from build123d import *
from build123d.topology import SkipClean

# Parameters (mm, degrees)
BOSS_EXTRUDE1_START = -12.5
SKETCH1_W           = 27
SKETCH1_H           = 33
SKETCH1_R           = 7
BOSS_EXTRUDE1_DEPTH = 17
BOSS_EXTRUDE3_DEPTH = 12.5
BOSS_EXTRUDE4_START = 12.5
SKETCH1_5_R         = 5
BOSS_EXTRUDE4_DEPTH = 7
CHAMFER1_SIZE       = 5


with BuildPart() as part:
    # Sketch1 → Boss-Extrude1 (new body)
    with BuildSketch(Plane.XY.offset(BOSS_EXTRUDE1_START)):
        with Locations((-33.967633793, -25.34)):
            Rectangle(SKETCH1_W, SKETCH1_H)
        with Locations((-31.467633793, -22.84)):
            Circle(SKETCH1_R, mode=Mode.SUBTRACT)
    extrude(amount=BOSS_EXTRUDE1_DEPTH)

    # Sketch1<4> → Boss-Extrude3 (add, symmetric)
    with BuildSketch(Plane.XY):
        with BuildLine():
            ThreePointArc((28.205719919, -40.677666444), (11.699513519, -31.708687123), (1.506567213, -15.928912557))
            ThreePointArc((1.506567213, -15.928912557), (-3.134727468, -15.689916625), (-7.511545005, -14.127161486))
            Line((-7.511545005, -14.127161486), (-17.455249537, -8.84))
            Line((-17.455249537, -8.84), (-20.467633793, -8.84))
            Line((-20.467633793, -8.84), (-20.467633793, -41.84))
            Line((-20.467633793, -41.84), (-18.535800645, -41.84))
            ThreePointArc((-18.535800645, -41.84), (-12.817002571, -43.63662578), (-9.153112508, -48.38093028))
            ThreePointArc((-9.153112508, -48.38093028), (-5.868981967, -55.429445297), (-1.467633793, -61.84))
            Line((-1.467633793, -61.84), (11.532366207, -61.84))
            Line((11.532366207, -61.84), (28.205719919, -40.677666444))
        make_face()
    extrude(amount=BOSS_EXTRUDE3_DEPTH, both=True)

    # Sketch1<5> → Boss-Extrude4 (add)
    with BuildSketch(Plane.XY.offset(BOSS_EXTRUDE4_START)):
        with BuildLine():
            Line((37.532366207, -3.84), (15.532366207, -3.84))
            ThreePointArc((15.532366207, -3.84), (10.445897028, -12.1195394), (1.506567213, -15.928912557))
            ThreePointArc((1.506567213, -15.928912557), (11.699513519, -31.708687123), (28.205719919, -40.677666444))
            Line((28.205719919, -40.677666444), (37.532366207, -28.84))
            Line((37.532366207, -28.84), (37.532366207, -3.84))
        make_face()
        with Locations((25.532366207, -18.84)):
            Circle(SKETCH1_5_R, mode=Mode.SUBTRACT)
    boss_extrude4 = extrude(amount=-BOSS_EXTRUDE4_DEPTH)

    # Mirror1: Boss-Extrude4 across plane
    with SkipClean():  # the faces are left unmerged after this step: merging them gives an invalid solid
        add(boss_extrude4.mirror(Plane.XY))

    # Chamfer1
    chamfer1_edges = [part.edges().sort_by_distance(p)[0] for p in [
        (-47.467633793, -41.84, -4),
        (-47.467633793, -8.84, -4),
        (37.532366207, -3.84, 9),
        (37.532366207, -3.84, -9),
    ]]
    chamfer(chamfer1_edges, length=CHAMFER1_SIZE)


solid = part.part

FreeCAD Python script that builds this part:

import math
import FreeCAD as App
import Part
import Sketcher
from FreeCAD import Vector
Q = App.Units.Quantity


def edges_at(feature, points):
    """Names of the edges that pass closest to the given points."""
    edges = feature.Shape.Edges
    near = lambda p: min(range(len(edges)), key=lambda i: edges[i].distToShape(Part.Vertex(*p))[0])
    return sorted({f"Edge{near(p) + 1}" for p in points})


def add_polygon(sketch, points):
    """Adds a closed chain of lines whose ends are joined by coincident constraints."""
    first, n = sketch.GeometryCount, len(points)
    for a, b in zip(points, points[1:] + points[:1]):
        sketch.addGeometry(Part.LineSegment(App.Vector(*a, 0), App.Vector(*b, 0)), False)
    for i in range(n):
        sketch.addConstraint(Sketcher.Constraint("Coincident", first + i, 2, first + (i + 1) % n, 1))

doc = App.newDocument("Part")
body = doc.addObject("PartDesign::Body", "Body")

sketch1 = doc.addObject("Sketcher::SketchObject", "Sketch")
body.addObject(sketch1)
sketch1.AttachmentSupport = (doc.XY_Plane, [""])
sketch1.MapMode = "FlatFace"
sketch1.AttachmentOffset = App.Placement(Vector(0, 0, -12.5), App.Rotation())
add_polygon(sketch1, [(-47, -9), (-47, -42), (-20, -42), (-20, -9)])
sketch1.addGeometry(Part.Circle(Vector(-31, -23, 0), Vector(0, 0, 1), 7), False)
sketch1.addConstraint(Sketcher.Constraint("Vertical", 0))
sketch1.addConstraint(Sketcher.Constraint("Horizontal", 1))
sketch1.addConstraint(Sketcher.Constraint("Vertical", 2))
sketch1.addConstraint(Sketcher.Constraint("Horizontal", 3))
sketch1.addConstraint(Sketcher.Constraint("Diameter", 4, 14.0))
sketch1.addConstraint(Sketcher.Constraint("DistanceX", 1, 1, 1, 2, 27.0))
sketch1.addConstraint(Sketcher.Constraint("DistanceY", 0, 2, 0, 1, 33.0))
sketch1.addConstraint(Sketcher.Constraint("DistanceX", 0, 2, 4, 3, 16.0))
sketch1.addConstraint(Sketcher.Constraint("DistanceY", 0, 2, 4, 3, 19.0))
sketch1.addConstraint(Sketcher.Constraint("DistanceY", 4, 3, -1, 1, 22.84))
sketch1.addConstraint(Sketcher.Constraint("DistanceX", 4, 3, -1, 1, 31.467634))
pad1 = doc.addObject("PartDesign::Pad", "Pad")
body.addObject(pad1)
pad1.Profile = sketch1
pad1.Length = 17

sketch2 = doc.addObject("Sketcher::SketchObject", "Sketch001")
body.addObject(sketch2)
sketch2.AttachmentSupport = (doc.XY_Plane, [""])
sketch2.MapMode = "FlatFace"
sketch2.addGeometry(Part.ArcOfCircle(Part.Circle(Vector(37.5, -3.8, 0), Vector(0, 0, 1), 38), math.radians(-161), math.radians(-104)), False)
sketch2.addGeometry(Part.ArcOfCircle(Part.Circle(Vector(0, 0, 0), Vector(0, 0, 1), 16), math.radians(-118), math.radians(-85)), False)
sketch2.addGeometry(Part.LineSegment(Vector(-7.5, -14.1, 0), Vector(-17.5, -8.8, 0)), False)
sketch2.addGeometry(Part.LineSegment(Vector(-17.5, -8.8, 0), Vector(-20.5, -8.8, 0)), False)
sketch2.addGeometry(Part.LineSegment(Vector(-20.5, -8.8, 0), Vector(-20.5, -41.8, 0)), False)
sketch2.addGeometry(Part.LineSegment(Vector(-20.5, -41.8, 0), Vector(-18.5, -41.8, 0)), False)
sketch2.addGeometry(Part.ArcOfCircle(Part.Circle(Vector(-18.5, -51.8, 0), Vector(0, 0, 1), 10), math.radians(20), math.radians(90)), False)
sketch2.addGeometry(Part.ArcOfCircle(Part.Circle(Vector(34.9, -32.1, 0), Vector(0, 0, 1), 47), math.radians(-159.76), math.radians(-140.78)), False)
sketch2.addGeometry(Part.LineSegment(Vector(-1.5, -61.8, 0), Vector(11.5, -61.8, 0)), False)
sketch2.addGeometry(Part.LineSegment(Vector(11.5, -61.8, 0), Vector(28.2, -40.7, 0)), False)
sketch2.addConstraint(Sketcher.Constraint("Coincident", 0, 1, 1, 2))
sketch2.addConstraint(Sketcher.Constraint("Tangent", 1, 1, 2, 1))
sketch2.addConstraint(Sketcher.Constraint("Coincident", 2, 2, 3, 1))
sketch2.addConstraint(Sketcher.Constraint("Coincident", 3, 2, 4, 1))
sketch2.addConstraint(Sketcher.Constraint("Coincident", 4, 2, 5, 1))
sketch2.addConstraint(Sketcher.Constraint("Tangent", 5, 2, 6, 2))
sketch2.addConstraint(Sketcher.Constraint("Tangent", 6, 1, 7, 1))
sketch2.addConstraint(Sketcher.Constraint("Coincident", 7, 2, 8, 1))
sketch2.addConstraint(Sketcher.Constraint("Coincident", 8, 2, 9, 1))
sketch2.addConstraint(Sketcher.Constraint("Coincident", 9, 2, 0, 2))
sketch2.addConstraint(Sketcher.Constraint("Horizontal", 3))
sketch2.addConstraint(Sketcher.Constraint("Vertical", 4))
sketch2.addConstraint(Sketcher.Constraint("Horizontal", 5))
sketch2.addConstraint(Sketcher.Constraint("Horizontal", 8))
sketch2.addConstraint(Sketcher.Constraint("Coincident", 1, 3, -1, 1))
sketch2.addConstraint(Sketcher.Constraint("Radius", 0, 38.0))
sketch2.addConstraint(Sketcher.Constraint("Radius", 1, 16.0))
sketch2.addConstraint(Sketcher.Constraint("Radius", 6, 10.0))
sketch2.addConstraint(Sketcher.Constraint("Radius", 7, 47.0))
sketch2.addConstraint(Sketcher.Constraint("DistanceX", 8, 1, 8, 2, 13.0))
sketch2.addConstraint(Sketcher.Constraint("DistanceY", 4, 2, 4, 1, 33.0))
sketch2.addConstraint(Sketcher.Constraint("Angle", 2, Q("152 deg")))
sketch2.addConstraint(Sketcher.Constraint("DistanceY", 6, 3, 0, 3, 48.0))
sketch2.addConstraint(Sketcher.Constraint("DistanceY", 7, 2, 6, 3, 10.0))
sketch2.addConstraint(Sketcher.Constraint("DistanceX", 4, 2, 7, 2, 19.0))
sketch2.addConstraint(Sketcher.Constraint("DistanceY", 0, 3, -1, 1, 3.84))
sketch2.addConstraint(Sketcher.Constraint("DistanceX", 6, 3, -1, 1, 18.535801))
sketch2.addConstraint(Sketcher.Constraint("DistanceX", 0, 1, 0, 3, 36.025799))
sketch2.addConstraint(Sketcher.Constraint("DistanceX", 3, 2, 0, 1, 21.974201))
sketch2.addConstraint(Sketcher.Constraint("DistanceX", 9, 2, 7, 3, 6.739802))
pad2 = doc.addObject("PartDesign::Pad", "Pad001")
body.addObject(pad2)
pad2.Profile = sketch2
pad2.Length = 25
pad2.Midplane = True

sketch3 = doc.addObject("Sketcher::SketchObject", "Sketch002")
body.addObject(sketch3)
sketch3.AttachmentSupport = (doc.XY_Plane, [""])
sketch3.MapMode = "FlatFace"
sketch3.AttachmentOffset = App.Placement(Vector(0, 0, 12.5), App.Rotation())
sketch3.addGeometry(Part.LineSegment(Vector(38, -4, 0), Vector(16, -4, 0)), False)
sketch3.addGeometry(Part.ArcOfCircle(Part.Circle(Vector(0, 0, 0), Vector(0, 0, 1), 16), math.radians(-85), math.radians(-14)), False)
sketch3.addGeometry(Part.ArcOfCircle(Part.Circle(Vector(38, -4, 0), Vector(0, 0, 1), 38), math.radians(-161), math.radians(-104)), False)
sketch3.addGeometry(Part.LineSegment(Vector(28, -41, 0), Vector(38, -29, 0)), False)
sketch3.addGeometry(Part.LineSegment(Vector(38, -29, 0), Vector(38, -4, 0)), False)
sketch3.addGeometry(Part.Circle(Vector(26, -19, 0), Vector(0, 0, 1), 5), False)
sketch3.addConstraint(Sketcher.Constraint("Coincident", 0, 2, 1, 2))
sketch3.addConstraint(Sketcher.Constraint("Coincident", 1, 1, 2, 1))
sketch3.addConstraint(Sketcher.Constraint("Coincident", 2, 2, 3, 1))
sketch3.addConstraint(Sketcher.Constraint("Coincident", 3, 2, 4, 1))
sketch3.addConstraint(Sketcher.Constraint("Coincident", 4, 2, 0, 1))
sketch3.addConstraint(Sketcher.Constraint("Horizontal", 0))
sketch3.addConstraint(Sketcher.Constraint("Vertical", 4))
sketch3.addConstraint(Sketcher.Constraint("Coincident", 1, 3, -1, 1))
sketch3.addConstraint(Sketcher.Constraint("Coincident", 4, 2, 2, 3))
sketch3.addConstraint(Sketcher.Constraint("Diameter", 5, 10.0))
sketch3.addConstraint(Sketcher.Constraint("Radius", 1, 16.0))
sketch3.addConstraint(Sketcher.Constraint("Radius", 2, 38.0))
sketch3.addConstraint(Sketcher.Constraint("DistanceX", 0, 2, 0, 1, 22.0))
sketch3.addConstraint(Sketcher.Constraint("DistanceY", 4, 1, 4, 2, 25.0))
sketch3.addConstraint(Sketcher.Constraint("DistanceX", 5, 3, 2, 3, 12.0))
sketch3.addConstraint(Sketcher.Constraint("DistanceY", 5, 3, 2, 3, 15.0))
sketch3.addConstraint(Sketcher.Constraint("DistanceY", 2, 3, -1, 1, 3.84))
sketch3.addConstraint(Sketcher.Constraint("Distance", 3, 15.070391))
pad3 = doc.addObject("PartDesign::Pad", "Pad002")
body.addObject(pad3)
pad3.Profile = sketch3
pad3.Length = 7
pad3.Reversed = True
doc.recompute()

mirrored = doc.addObject("PartDesign::Mirrored", "Mirrored")
body.addObject(mirrored)
mirrored.Originals = [pad3]
mirrored.MirrorPlane = (doc.XY_Plane, [""])
body.Tip = mirrored
doc.recompute()

chamfer = doc.addObject("PartDesign::Chamfer", "Chamfer")
body.addObject(chamfer)
chamfer.Base = (mirrored, edges_at(mirrored, [
    (-47.468, -41.84, -4),
    (-47.468, -8.84, -4),
    (37.532, -3.84, 9),
    (37.532, -3.84, -9),
]))
chamfer.Size = 5

doc.recompute()
